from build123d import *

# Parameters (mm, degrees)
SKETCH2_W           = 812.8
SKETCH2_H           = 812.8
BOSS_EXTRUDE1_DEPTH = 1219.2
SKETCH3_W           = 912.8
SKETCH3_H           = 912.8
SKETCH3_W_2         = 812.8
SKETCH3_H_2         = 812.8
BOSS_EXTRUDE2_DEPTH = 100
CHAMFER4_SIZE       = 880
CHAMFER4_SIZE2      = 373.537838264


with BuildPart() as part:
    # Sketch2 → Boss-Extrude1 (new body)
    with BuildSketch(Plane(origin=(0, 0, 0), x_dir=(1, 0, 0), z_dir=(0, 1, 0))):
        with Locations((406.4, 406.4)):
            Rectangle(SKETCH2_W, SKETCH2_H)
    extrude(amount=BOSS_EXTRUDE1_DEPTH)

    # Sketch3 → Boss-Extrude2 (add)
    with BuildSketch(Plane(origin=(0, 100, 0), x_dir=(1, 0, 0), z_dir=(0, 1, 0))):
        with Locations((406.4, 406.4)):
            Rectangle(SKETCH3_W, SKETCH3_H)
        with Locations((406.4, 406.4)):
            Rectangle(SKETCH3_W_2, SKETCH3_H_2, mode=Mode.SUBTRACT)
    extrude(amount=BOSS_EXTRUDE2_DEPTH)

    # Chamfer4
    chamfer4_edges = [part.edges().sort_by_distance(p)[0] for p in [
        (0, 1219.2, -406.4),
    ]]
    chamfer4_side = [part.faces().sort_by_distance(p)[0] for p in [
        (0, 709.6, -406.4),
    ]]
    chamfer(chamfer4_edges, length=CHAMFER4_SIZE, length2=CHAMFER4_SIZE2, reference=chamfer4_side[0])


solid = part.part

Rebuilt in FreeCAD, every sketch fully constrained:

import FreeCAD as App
import Part
import Sketcher

V = App.Vector
Q = App.Units.Quantity


def edges_at(feature, points):
    """Names of the edges that pass closest to the given points."""
    edges = feature.Shape.Edges
    near = lambda p: min(range(len(edges)), key=lambda i: edges[i].distToShape(Part.Vertex(*p))[0])
    return sorted({f"Edge{near(p) + 1}" for p in points})

doc = App.newDocument("Part")
body = doc.addObject("PartDesign::Body", "Body")

# Sketch on XZ plane
sketch1 = body.newObject("Sketcher::SketchObject", "Sketch")
sketch1.AttachmentSupport = (doc.getObject("XZ_Plane"), [""])
sketch1.MapMode = "FlatFace"
sketch1.addGeometry([
    Part.LineSegment(V(0, -812.8, 0), V(0, 0, 0)),
    Part.LineSegment(V(0, 0, 0), V(812.8, 0, 0)),
    Part.LineSegment(V(812.8, 0, 0), V(812.8, -812.8, 0)),
    Part.LineSegment(V(812.8, -812.8, 0), V(0, -812.8, 0)),
], False)
sketch1.addConstraint([
    Sketcher.Constraint("Coincident", 0, 2, 1, 1),
    Sketcher.Constraint("Coincident", 1, 2, 2, 1),
    Sketcher.Constraint("Coincident", 2, 2, 3, 1),
    Sketcher.Constraint("Coincident", 3, 2, 0, 1),
    Sketcher.Constraint("Vertical", 0),
    Sketcher.Constraint("Horizontal", 1),
    Sketcher.Constraint("Vertical", 2),
    Sketcher.Constraint("Horizontal", 3),
    Sketcher.Constraint("Coincident", 0, 2, -1, 1),
    Sketcher.Constraint("Equal", 3, 0),
    Sketcher.Constraint("DistanceX", 1, 1, 1, 2, Q("812.8 mm")),
])
pad1 = body.newObject("PartDesign::Pad", "Pad")
pad1.Profile = sketch1
pad1.Length = 1219.2
pad1.Reversed = True

# Sketch on XZ plane
sketch2 = body.newObject("Sketcher::SketchObject", "Sketch001")
sketch2.AttachmentSupport = (doc.getObject("XZ_Plane"), [""])
sketch2.MapMode = "FlatFace"
sketch2.AttachmentOffset = App.Placement(V(0, 0, -100), App.Rotation())
sketch2.addGeometry([
    Part.LineSegment(V(-50, -862.8, 0), V(-50, 50, 0)),  # 0
    Part.LineSegment(V(-50, 50, 0), V(862.8, 50, 0)),  # 1
    Part.LineSegment(V(862.8, 50, 0), V(862.8, -862.8, 0)),  # 2
    Part.LineSegment(V(862.8, -862.8, 0), V(-50, -862.8, 0)),  # 3
    Part.LineSegment(V(812.8, 0, 0), V(0, 0, 0)),  # 4
    Part.LineSegment(V(0, 0, 0), V(0, -812.8, 0)),  # 5
    Part.LineSegment(V(0, -812.8, 0), V(812.8, -812.8, 0)),  # 6
    Part.LineSegment(V(812.8, -812.8, 0), V(812.8, 0, 0)),  # 7
], False)
sketch2.addConstraint([
    Sketcher.Constraint("Coincident", 0, 2, 1, 1),
    Sketcher.Constraint("Coincident", 1, 2, 2, 1),
    Sketcher.Constraint("Coincident", 2, 2, 3, 1),
    Sketcher.Constraint("Coincident", 3, 2, 0, 1),
    Sketcher.Constraint("Coincident", 4, 2, 5, 1),
    Sketcher.Constraint("Coincident", 5, 2, 6, 1),
    Sketcher.Constraint("Coincident", 6, 2, 7, 1),
    Sketcher.Constraint("Coincident", 7, 2, 4, 1),
    Sketcher.Constraint("Vertical", 0),
    Sketcher.Constraint("Horizontal", 1),
    Sketcher.Constraint("Vertical", 2),
    Sketcher.Constraint("Horizontal", 3),
    Sketcher.Constraint("Horizontal", 4),
    Sketcher.Constraint("Vertical", 5),
    Sketcher.Constraint("Horizontal", 6),
    Sketcher.Constraint("Vertical", 7),
    Sketcher.Constraint("Coincident", 4, 2, -1, 1),
    Sketcher.Constraint("Equal", 3, 0),
    Sketcher.Constraint("Equal", 6, 5),
    Sketcher.Constraint("DistanceX", 1, 1, 1, 2, Q("912.8 mm")),
    Sketcher.Constraint("DistanceX", 4, 2, 4, 1, Q("812.8 mm")),
    Sketcher.Constraint("DistanceX", 0, 2, -1, 1, Q("50 mm")),
    Sketcher.Constraint("DistanceY", -1, 1, 0, 2, Q("50 mm")),
])
pad2 = body.newObject("PartDesign::Pad", "Pad001")
pad2.Profile = sketch2
pad2.Length = 100
pad2.Reversed = True
doc.recompute()

chamfer = body.newObject("PartDesign::Chamfer", "Chamfer")
chamfer.Base = (pad2, edges_at(pad2, [(0, 1219.2, -406.4)]))
chamfer.ChamferType = "Two distances"
chamfer.Size = 880
chamfer.Size2 = 373.537838

doc.recompute()
